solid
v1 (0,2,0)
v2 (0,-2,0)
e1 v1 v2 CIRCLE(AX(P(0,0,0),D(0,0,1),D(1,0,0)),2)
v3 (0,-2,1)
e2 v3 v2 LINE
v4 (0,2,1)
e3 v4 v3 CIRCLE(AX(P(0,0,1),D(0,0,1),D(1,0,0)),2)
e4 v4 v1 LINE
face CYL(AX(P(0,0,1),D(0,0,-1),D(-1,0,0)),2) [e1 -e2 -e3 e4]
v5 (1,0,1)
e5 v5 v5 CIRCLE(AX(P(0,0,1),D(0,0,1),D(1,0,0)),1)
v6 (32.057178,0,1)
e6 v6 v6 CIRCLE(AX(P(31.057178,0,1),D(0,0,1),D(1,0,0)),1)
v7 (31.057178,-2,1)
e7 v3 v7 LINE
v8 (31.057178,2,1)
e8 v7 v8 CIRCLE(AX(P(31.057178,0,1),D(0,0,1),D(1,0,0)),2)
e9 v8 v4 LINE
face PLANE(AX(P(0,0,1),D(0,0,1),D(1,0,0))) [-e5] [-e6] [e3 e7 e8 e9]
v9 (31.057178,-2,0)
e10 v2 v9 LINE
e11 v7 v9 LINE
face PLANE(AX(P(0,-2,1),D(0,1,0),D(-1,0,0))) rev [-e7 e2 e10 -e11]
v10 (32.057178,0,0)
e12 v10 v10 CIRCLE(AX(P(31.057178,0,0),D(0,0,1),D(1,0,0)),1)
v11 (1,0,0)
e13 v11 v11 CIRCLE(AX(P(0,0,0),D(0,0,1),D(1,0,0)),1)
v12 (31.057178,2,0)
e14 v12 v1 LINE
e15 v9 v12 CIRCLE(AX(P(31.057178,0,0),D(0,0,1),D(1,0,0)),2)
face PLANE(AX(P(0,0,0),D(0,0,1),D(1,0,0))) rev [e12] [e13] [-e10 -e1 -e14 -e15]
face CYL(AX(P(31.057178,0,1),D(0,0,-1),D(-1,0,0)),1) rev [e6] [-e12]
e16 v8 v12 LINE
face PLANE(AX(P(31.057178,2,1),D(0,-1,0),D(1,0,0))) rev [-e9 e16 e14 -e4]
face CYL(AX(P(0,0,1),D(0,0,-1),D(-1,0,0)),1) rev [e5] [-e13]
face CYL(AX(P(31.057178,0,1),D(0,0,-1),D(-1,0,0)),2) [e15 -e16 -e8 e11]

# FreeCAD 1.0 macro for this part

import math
import FreeCAD as App
import Part
import Sketcher

doc = App.newDocument("Part")
body = doc.addObject("PartDesign::Body", "Body")

sketch1 = doc.addObject("Sketcher::SketchObject", "Sketch")
body.addObject(sketch1)
sketch1.AttachmentSupport = (doc.XY_Plane, [""])
sketch1.MapMode = "FlatFace"
sketch1.addGeometry([
    Part.LineSegment(App.Vector(0, -2, 0), App.Vector(31.1, -2, 0)),
    Part.ArcOfCircle(Part.Circle(App.Vector(31.1, 0, 0), App.Vector(0, 0, 1), 2), math.radians(-90), math.radians(90)),
    Part.LineSegment(App.Vector(31.1, 2, 0), App.Vector(0, 2, 0)),
    Part.ArcOfCircle(Part.Circle(App.Vector(0, 0, 0), App.Vector(0, 0, 1), 2), math.radians(90), math.radians(270)),
    Part.Circle(App.Vector(0, 0, 0), App.Vector(0, 0, 1), 1),
    Part.Circle(App.Vector(31.1, 0, 0), App.Vector(0, 0, 1), 1),
], False)
sketch1.addConstraint([
    Sketcher.Constraint("Tangent", 0, 2, 1, 1),
    Sketcher.Constraint("Tangent", 1, 2, 2, 1),
    Sketcher.Constraint("Tangent", 2, 2, 3, 1),
    Sketcher.Constraint("Tangent", 3, 2, 0, 1),
    Sketcher.Constraint("Horizontal", 0),
    Sketcher.Constraint("Horizontal", 2),
    Sketcher.Constraint("Coincident", 3, 3, -1, 1),
    Sketcher.Constraint("Coincident", 4, 3, -1, 1),
    Sketcher.Constraint("Coincident", 5, 3, 1, 3),
    Sketcher.Constraint("Equal", 4, 5),
    Sketcher.Constraint("Diameter", 4, 2.0),
    Sketcher.Constraint("Radius", 1, 2.0),
    Sketcher.Constraint("DistanceX", 0, 1, 0, 2, 31.057178),
])
pad1 = doc.addObject("PartDesign::Pad", "Pad")
body.addObject(pad1)
pad1.Profile = sketch1
pad1.Length = 1

doc.recompute()
